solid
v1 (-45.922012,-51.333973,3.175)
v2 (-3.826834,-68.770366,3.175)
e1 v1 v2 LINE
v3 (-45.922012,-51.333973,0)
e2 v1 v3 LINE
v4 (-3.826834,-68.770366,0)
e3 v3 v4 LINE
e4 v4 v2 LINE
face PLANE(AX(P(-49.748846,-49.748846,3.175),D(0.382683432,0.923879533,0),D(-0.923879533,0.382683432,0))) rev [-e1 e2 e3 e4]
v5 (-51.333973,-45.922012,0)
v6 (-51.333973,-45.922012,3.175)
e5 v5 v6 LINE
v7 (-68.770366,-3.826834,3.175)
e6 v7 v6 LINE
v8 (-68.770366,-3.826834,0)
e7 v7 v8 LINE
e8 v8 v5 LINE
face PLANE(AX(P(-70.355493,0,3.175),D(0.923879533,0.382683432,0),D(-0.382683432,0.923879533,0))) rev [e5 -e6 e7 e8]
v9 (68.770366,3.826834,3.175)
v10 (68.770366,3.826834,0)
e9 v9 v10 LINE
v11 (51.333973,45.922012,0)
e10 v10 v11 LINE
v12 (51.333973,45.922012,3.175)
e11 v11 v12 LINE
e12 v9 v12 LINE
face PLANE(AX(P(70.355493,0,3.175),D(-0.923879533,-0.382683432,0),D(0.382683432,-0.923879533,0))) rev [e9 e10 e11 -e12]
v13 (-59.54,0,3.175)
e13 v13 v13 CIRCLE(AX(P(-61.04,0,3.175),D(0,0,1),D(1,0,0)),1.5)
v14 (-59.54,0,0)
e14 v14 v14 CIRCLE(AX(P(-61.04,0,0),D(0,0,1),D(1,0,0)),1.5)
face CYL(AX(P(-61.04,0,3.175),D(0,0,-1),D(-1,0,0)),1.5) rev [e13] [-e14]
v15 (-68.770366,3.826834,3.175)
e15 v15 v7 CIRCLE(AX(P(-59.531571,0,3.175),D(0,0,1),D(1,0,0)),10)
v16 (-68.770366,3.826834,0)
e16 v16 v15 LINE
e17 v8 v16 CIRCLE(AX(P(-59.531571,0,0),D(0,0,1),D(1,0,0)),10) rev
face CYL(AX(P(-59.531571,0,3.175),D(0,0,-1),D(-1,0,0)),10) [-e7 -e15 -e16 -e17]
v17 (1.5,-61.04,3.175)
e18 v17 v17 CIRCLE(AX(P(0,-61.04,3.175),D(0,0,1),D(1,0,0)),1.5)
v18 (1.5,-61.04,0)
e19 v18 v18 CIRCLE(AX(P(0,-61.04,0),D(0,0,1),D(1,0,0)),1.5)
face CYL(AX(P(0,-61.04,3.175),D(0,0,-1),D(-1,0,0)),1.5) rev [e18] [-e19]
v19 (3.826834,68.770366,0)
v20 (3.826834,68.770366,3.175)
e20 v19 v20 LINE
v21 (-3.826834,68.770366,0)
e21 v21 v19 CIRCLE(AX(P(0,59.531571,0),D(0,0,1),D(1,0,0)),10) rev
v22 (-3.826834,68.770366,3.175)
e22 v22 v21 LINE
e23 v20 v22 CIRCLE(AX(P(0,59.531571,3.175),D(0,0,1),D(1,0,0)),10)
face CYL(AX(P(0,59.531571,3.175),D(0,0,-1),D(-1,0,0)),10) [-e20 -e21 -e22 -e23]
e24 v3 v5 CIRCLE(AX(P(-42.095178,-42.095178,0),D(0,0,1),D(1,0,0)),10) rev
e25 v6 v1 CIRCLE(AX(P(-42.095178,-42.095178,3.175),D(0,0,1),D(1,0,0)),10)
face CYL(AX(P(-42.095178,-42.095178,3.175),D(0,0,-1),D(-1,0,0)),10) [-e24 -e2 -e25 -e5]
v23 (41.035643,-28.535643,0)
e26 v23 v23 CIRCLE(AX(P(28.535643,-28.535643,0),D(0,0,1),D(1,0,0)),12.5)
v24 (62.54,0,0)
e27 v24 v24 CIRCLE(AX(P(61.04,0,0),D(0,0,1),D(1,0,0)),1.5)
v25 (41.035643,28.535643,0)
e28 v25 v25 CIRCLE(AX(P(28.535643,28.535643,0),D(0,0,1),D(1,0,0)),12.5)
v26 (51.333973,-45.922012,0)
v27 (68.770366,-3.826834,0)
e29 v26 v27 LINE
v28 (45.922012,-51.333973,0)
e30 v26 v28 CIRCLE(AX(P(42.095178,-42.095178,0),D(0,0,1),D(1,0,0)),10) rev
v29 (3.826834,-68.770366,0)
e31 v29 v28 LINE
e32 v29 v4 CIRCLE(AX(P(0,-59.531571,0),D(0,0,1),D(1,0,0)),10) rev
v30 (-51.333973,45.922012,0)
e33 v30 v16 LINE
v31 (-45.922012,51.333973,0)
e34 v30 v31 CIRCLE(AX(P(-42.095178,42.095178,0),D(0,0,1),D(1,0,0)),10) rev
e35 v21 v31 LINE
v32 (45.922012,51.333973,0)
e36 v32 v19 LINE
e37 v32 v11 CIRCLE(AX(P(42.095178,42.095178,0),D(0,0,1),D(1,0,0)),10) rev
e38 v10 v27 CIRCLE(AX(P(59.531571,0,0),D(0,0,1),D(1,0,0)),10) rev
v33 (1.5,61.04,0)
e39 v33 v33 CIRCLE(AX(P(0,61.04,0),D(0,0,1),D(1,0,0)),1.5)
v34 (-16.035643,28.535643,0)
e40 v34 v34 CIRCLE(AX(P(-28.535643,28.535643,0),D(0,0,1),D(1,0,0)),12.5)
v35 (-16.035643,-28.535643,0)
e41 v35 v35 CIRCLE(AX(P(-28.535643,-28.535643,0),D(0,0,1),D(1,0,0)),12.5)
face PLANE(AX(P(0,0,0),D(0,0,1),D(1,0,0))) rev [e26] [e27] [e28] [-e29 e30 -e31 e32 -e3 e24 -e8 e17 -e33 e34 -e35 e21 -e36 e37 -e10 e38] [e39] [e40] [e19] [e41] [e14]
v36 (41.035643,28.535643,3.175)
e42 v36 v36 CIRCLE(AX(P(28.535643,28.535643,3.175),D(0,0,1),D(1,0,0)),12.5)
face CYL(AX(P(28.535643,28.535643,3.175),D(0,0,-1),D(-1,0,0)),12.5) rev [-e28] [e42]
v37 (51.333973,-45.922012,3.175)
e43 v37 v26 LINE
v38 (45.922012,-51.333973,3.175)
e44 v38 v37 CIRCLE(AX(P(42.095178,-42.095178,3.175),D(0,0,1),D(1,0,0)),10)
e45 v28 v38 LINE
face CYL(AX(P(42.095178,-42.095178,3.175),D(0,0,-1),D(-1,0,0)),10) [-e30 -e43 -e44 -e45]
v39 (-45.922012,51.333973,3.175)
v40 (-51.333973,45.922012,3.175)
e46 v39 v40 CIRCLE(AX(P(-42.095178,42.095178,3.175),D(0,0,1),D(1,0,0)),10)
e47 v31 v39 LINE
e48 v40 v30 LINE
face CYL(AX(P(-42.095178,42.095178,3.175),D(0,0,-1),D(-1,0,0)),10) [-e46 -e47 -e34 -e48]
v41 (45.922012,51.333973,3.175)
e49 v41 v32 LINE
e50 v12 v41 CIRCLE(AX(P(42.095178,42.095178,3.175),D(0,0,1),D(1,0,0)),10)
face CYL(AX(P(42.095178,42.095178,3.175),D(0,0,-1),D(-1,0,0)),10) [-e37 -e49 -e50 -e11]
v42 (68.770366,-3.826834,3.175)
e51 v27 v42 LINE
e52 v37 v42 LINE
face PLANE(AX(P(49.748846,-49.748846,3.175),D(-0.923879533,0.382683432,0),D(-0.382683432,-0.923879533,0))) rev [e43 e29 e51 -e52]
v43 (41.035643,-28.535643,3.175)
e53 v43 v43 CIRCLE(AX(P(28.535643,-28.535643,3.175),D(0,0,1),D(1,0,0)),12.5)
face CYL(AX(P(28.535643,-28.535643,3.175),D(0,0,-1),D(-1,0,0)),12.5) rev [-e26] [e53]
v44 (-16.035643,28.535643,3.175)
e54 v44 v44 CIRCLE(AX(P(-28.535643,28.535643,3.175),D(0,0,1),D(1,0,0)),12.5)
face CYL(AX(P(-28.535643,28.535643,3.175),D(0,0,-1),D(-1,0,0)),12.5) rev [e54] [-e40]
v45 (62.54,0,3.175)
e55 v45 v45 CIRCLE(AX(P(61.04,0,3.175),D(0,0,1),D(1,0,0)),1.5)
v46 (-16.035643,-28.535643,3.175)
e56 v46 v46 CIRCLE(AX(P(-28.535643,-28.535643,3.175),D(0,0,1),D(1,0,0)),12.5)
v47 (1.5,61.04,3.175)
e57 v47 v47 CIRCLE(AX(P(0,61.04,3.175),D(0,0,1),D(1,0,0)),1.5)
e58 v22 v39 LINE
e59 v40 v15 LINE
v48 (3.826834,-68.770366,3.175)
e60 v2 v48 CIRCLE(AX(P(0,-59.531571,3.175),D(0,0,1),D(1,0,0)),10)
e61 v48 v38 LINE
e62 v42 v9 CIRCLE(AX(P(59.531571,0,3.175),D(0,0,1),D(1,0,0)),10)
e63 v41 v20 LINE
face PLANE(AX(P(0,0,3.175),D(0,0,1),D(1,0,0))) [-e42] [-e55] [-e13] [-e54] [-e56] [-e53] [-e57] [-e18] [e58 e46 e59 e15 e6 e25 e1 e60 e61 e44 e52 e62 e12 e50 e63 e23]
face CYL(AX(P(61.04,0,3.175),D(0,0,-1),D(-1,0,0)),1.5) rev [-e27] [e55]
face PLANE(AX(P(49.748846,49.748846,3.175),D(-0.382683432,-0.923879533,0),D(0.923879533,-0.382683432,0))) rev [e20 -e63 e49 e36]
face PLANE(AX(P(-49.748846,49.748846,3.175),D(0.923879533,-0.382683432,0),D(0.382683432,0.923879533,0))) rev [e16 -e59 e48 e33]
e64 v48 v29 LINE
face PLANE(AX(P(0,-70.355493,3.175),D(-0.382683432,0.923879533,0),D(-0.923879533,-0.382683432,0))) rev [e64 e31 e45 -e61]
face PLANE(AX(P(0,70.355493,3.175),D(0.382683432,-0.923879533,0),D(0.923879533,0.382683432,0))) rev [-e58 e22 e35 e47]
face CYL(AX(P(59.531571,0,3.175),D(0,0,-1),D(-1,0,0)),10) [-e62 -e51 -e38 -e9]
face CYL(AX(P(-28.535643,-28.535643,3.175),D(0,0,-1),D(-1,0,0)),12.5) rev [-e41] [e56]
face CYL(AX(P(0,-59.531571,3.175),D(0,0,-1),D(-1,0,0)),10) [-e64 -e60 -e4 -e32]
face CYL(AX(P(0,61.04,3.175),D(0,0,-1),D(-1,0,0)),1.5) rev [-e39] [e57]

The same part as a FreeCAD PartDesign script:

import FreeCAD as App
import Part
import Sketcher
Q = App.Units.Quantity


def edges_at(feature, points):
    """Names of the edges that pass closest to the given points."""
    edges = feature.Shape.Edges
    near = lambda p: min(range(len(edges)), key=lambda i: edges[i].distToShape(Part.Vertex(*p))[0])
    return sorted({f"Edge{near(p) + 1}" for p in points})


def add_polygon(sketch, points):
    """Adds a closed chain of lines whose ends are joined by coincident constraints."""
    first, n = sketch.GeometryCount, len(points)
    for a, b in zip(points, points[1:] + points[:1]):
        sketch.addGeometry(Part.LineSegment(App.Vector(*a, 0), App.Vector(*b, 0)), False)
    for i in range(n):
        sketch.addConstraint(Sketcher.Constraint("Coincident", first + i, 2, first + (i + 1) % n, 1))

doc = App.newDocument("Part")
params = doc.addObject("Spreadsheet::Sheet", "Params")
for row, (alias, value) in enumerate([
    ("sketch1_diameter", "25 mm"),
    ("sketch1_diameter2", "3 mm"),
    ("pad1_length", "3.175 mm"),
    ("fillet_radius", "10 mm"),
    ("fillet2_radius", "10 mm"),
], start=1):
    params.set(f"A{row}", alias)
    params.set(f"B{row}", "=" + value)
    params.setAlias(f"B{row}", alias)

body = doc.addObject("PartDesign::Body", "Body")

# Sketch on XY plane
sketch1 = body.newObject("Sketcher::SketchObject", "Sketch")
sketch1.AttachmentSupport = (doc.getObject("XY_Plane"), [""])
sketch1.MapMode = "FlatFace"
add_polygon(sketch1, [(70.4, 0), (49.7, 49.7), (0, 70.4), (-49.7, 49.7), (-70.4, 0), (-49.7, -49.7), (0, -70.4), (49.7, -49.7)])  # lines 0-7
sketch1.addGeometry(Part.Circle(App.Vector(-28.5, -28.5, 0), App.Vector(0, 0, 1), 12.5), False)  # 8
sketch1.addGeometry(Part.Circle(App.Vector(0, -61, 0), App.Vector(0, 0, 1), 1.5), False)  # 9
sketch1.addGeometry(Part.Circle(App.Vector(28.5, -28.5, 0), App.Vector(0, 0, 1), 12.5), False)  # 10
sketch1.addGeometry(Part.Circle(App.Vector(-61, 0, 0), App.Vector(0, 0, 1), 1.5), False)  # 11
sketch1.addGeometry(Part.Circle(App.Vector(-28.5, 28.5, 0), App.Vector(0, 0, 1), 12.5), False)  # 12
sketch1.addGeometry(Part.Circle(App.Vector(28.5, 28.5, 0), App.Vector(0, 0, 1), 12.5), False)  # 13
sketch1.addGeometry(Part.Circle(App.Vector(61, 0, 0), App.Vector(0, 0, 1), 1.5), False)  # 14
sketch1.addGeometry(Part.Circle(App.Vector(0, 61, 0), App.Vector(0, 0, 1), 1.5), False)  # 15
sketch1.addConstraint([
    Sketcher.Constraint("Equal", 8, 10),
    Sketcher.Constraint("Equal", 9, 11),
    Sketcher.Constraint("Equal", 10, 12),
    Sketcher.Constraint("Equal", 12, 13),
    Sketcher.Constraint("Equal", 11, 14),
    Sketcher.Constraint("Equal", 14, 15),
    Sketcher.Constraint("Symmetric", 10, 3, 12, 3, -1, 1),
    Sketcher.Constraint("Symmetric", 8, 3, 13, 3, -1, 1),
    Sketcher.Constraint("Symmetric", 11, 3, 14, 3, -1, 1),
    Sketcher.Constraint("Symmetric", 9, 3, 15, 3, -1, 1),
    Sketcher.Constraint("Symmetric", 0, 2, 4, 2, -1, 1),
    Sketcher.Constraint("Symmetric", 1, 2, 5, 2, -1, 1),
    Sketcher.Constraint("Symmetric", 2, 2, 6, 2, -1, 1),
    Sketcher.Constraint("Symmetric", 3, 2, 7, 2, -1, 1),
    Sketcher.Constraint("Symmetric", 8, 3, 10, 3, -2),
    Sketcher.Constraint("Symmetric", 0, 2, 2, 2, -2),
    Sketcher.Constraint("PointOnObject", 9, 3, -2),
    Sketcher.Constraint("PointOnObject", 11, 3, -1),
    Sketcher.Constraint("PointOnObject", 1, 2, -2),
    Sketcher.Constraint("PointOnObject", 3, 2, -1),
    Sketcher.Constraint("Perpendicular", 0, 2),
    Sketcher.Constraint("Equal", 0, 1),
    Sketcher.Constraint("Diameter", 8, 25.0),
    Sketcher.Constraint("Diameter", 9, 3.0),
    Sketcher.Constraint("Angle", 0, Q("112.5 deg")),
    Sketcher.Constraint("DistanceY", 9, 3, -1, 1, 61.04),
    Sketcher.Constraint("DistanceX", 11, 3, -1, 1, 61.04),
    Sketcher.Constraint("DistanceY", 10, 3, 0, 2, 78.284489),
    Sketcher.Constraint("DistanceX", 12, 3, 0, 2, 78.284489),
    Sketcher.Constraint("DistanceY", 12, 3, 1, 2, 41.81985),
])
sketch1.setExpression("Constraints[30]", "Params.sketch1_diameter")
sketch1.setExpression("Constraints[31]", "Params.sketch1_diameter2")
pad1 = body.newObject("PartDesign::Pad", "Pad")
pad1.Profile = sketch1
pad1.setExpression("Length", "Params.pad1_length")
doc.recompute()

fillet = body.newObject("PartDesign::Fillet", "Fillet")
fillet.Base = (pad1, edges_at(pad1, [
    (49.749, -49.749, 1.587),
    (0, -70.355, 1.587),
    (-49.749, -49.749, 1.587),
    (-70.355, 0, 1.587),
    (0, 70.355, 1.587),
    (49.749, 49.749, 1.587),
    (70.355, 0, 1.587),
]))
fillet.setExpression("Radius", "Params.fillet_radius")
doc.recompute()

fillet2 = body.newObject("PartDesign::Fillet", "Fillet001")
fillet2.Base = (fillet, edges_at(fillet, [(-49.749, 49.749, 1.587)]))
fillet2.setExpression("Radius", "Params.fillet2_radius")

doc.recompute()
